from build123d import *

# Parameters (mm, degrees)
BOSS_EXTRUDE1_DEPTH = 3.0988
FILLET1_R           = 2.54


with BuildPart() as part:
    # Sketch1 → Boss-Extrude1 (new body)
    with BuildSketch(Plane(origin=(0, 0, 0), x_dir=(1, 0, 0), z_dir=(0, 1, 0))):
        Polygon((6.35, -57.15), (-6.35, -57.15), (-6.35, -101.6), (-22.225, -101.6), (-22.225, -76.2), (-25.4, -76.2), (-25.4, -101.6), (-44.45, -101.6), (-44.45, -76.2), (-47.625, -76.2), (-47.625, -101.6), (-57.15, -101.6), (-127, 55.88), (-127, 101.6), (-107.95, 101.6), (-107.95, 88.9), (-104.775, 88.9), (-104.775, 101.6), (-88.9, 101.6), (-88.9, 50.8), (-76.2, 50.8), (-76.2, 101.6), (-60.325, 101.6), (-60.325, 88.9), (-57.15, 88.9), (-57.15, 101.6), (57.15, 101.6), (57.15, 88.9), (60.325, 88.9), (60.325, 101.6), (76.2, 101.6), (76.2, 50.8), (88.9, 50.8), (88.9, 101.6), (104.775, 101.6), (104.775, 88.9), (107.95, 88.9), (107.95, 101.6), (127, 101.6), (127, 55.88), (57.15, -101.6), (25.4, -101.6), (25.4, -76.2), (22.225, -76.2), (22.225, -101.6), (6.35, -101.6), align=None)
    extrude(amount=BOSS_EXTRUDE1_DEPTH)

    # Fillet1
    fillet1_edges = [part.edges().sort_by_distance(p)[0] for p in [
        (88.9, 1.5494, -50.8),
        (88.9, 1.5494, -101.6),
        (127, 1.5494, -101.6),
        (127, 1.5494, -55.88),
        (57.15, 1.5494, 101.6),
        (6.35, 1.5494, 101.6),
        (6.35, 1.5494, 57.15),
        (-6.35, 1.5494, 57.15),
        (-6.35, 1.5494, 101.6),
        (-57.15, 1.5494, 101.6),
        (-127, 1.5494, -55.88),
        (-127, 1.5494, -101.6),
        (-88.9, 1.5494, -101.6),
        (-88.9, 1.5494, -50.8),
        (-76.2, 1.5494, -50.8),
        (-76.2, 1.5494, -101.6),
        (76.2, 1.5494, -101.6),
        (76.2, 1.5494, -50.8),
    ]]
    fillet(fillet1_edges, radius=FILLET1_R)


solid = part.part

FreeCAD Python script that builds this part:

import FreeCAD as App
import Part
import Sketcher
from FreeCAD import Vector
Q = App.Units.Quantity


def edges_at(feature, points):
    """Names of the edges that pass closest to the given points."""
    edges = feature.Shape.Edges
    near = lambda p: min(range(len(edges)), key=lambda i: edges[i].distToShape(Part.Vertex(*p))[0])
    return sorted({f"Edge{near(p) + 1}" for p in points})

doc = App.newDocument("Part")
body = doc.addObject("PartDesign::Body", "Body")

# Sketch on XZ plane
sketch1 = body.newObject("Sketcher::SketchObject", "Sketch")
sketch1.AttachmentSupport = (doc.getObject("XZ_Plane"), [""])
sketch1.MapMode = "FlatFace"
sketch1.addGeometry([
    Part.LineSegment(Vector(-6.3, 57.1, 0), Vector(6.3, 57.1, 0)),  # 0
    Part.LineSegment(Vector(6.3, 57.1, 0), Vector(6.3, 101.6, 0)),  # 1
    Part.LineSegment(Vector(6.3, 101.6, 0), Vector(22.2, 101.6, 0)),  # 2
    Part.LineSegment(Vector(22.2, 101.6, 0), Vector(22.2, 76.2, 0)),  # 3
    Part.LineSegment(Vector(22.2, 76.2, 0), Vector(25.4, 76.2, 0)),  # 4
    Part.LineSegment(Vector(25.4, 76.2, 0), Vector(25.4, 101.6, 0)),  # 5
    Part.LineSegment(Vector(25.4, 101.6, 0), Vector(57.1, 101.6, 0)),  # 6
    Part.LineSegment(Vector(57.1, 101.6, 0), Vector(127, -55.9, 0)),  # 7
    Part.LineSegment(Vector(127, -55.9, 0), Vector(127, -101.6, 0)),  # 8
    Part.LineSegment(Vector(127, -101.6, 0), Vector(108, -101.6, 0)),  # 9
    Part.LineSegment(Vector(108, -101.6, 0), Vector(108, -88.9, 0)),  # 10
    Part.LineSegment(Vector(108, -88.9, 0), Vector(104.8, -88.9, 0)),  # 11
    Part.LineSegment(Vector(104.8, -88.9, 0), Vector(104.8, -101.6, 0)),  # 12
    Part.LineSegment(Vector(104.8, -101.6, 0), Vector(88.9, -101.6, 0)),  # 13
    Part.LineSegment(Vector(88.9, -101.6, 0), Vector(88.9, -50.8, 0)),  # 14
    Part.LineSegment(Vector(88.9, -50.8, 0), Vector(76.2, -50.8, 0)),  # 15
    Part.LineSegment(Vector(76.2, -50.8, 0), Vector(76.2, -101.6, 0)),  # 16
    Part.LineSegment(Vector(76.2, -101.6, 0), Vector(60.3, -101.6, 0)),  # 17
    Part.LineSegment(Vector(60.3, -101.6, 0), Vector(60.3, -88.9, 0)),  # 18
    Part.LineSegment(Vector(60.3, -88.9, 0), Vector(57.1, -88.9, 0)),  # 19
    Part.LineSegment(Vector(57.1, -88.9, 0), Vector(57.1, -101.6, 0)),  # 20
    Part.LineSegment(Vector(57.1, -101.6, 0), Vector(-57.1, -101.6, 0)),  # 21
    Part.LineSegment(Vector(-57.1, -101.6, 0), Vector(-57.1, -88.9, 0)),  # 22
    Part.LineSegment(Vector(-57.1, -88.9, 0), Vector(-60.3, -88.9, 0)),  # 23
    Part.LineSegment(Vector(-60.3, -88.9, 0), Vector(-60.3, -101.6, 0)),  # 24
    Part.LineSegment(Vector(-60.3, -101.6, 0), Vector(-76.2, -101.6, 0)),  # 25
    Part.LineSegment(Vector(-76.2, -101.6, 0), Vector(-76.2, -50.8, 0)),  # 26
    Part.LineSegment(Vector(-76.2, -50.8, 0), Vector(-88.9, -50.8, 0)),  # 27
    Part.LineSegment(Vector(-88.9, -50.8, 0), Vector(-88.9, -101.6, 0)),  # 28
    Part.LineSegment(Vector(-88.9, -101.6, 0), Vector(-104.8, -101.6, 0)),  # 29
    Part.LineSegment(Vector(-104.8, -101.6, 0), Vector(-104.8, -88.9, 0)),  # 30
    Part.LineSegment(Vector(-104.8, -88.9, 0), Vector(-108, -88.9, 0)),  # 31
    Part.LineSegment(Vector(-108, -88.9, 0), Vector(-108, -101.6, 0)),  # 32
    Part.LineSegment(Vector(-108, -101.6, 0), Vector(-127, -101.6, 0)),  # 33
    Part.LineSegment(Vector(-127, -101.6, 0), Vector(-127, -55.9, 0)),  # 34
    Part.LineSegment(Vector(-127, -55.9, 0), Vector(-57.1, 101.6, 0)),  # 35
    Part.LineSegment(Vector(-57.1, 101.6, 0), Vector(-47.6, 101.6, 0)),  # 36
    Part.LineSegment(Vector(-47.6, 101.6, 0), Vector(-47.6, 76.2, 0)),  # 37
    Part.LineSegment(Vector(-47.6, 76.2, 0), Vector(-44.5, 76.2, 0)),  # 38
    Part.LineSegment(Vector(-44.5, 76.2, 0), Vector(-44.5, 101.6, 0)),  # 39
    Part.LineSegment(Vector(-44.5, 101.6, 0), Vector(-25.4, 101.6, 0)),  # 40
    Part.LineSegment(Vector(-25.4, 101.6, 0), Vector(-25.4, 76.2, 0)),  # 41
    Part.LineSegment(Vector(-25.4, 76.2, 0), Vector(-22.2, 76.2, 0)),  # 42
    Part.LineSegment(Vector(-22.2, 76.2, 0), Vector(-22.2, 101.6, 0)),  # 43
    Part.LineSegment(Vector(-22.2, 101.6, 0), Vector(-6.3, 101.6, 0)),  # 44
    Part.LineSegment(Vector(-6.3, 101.6, 0), Vector(-6.3, 57.1, 0)),  # 45
], False)
sketch1.addConstraint([
    Sketcher.Constraint("Coincident", 0, 2, 1, 1),
    Sketcher.Constraint("Coincident", 1, 2, 2, 1),
    Sketcher.Constraint("Coincident", 2, 2, 3, 1),
    Sketcher.Constraint("Coincident", 3, 2, 4, 1),
    Sketcher.Constraint("Coincident", 4, 2, 5, 1),
    Sketcher.Constraint("Coincident", 5, 2, 6, 1),
    Sketcher.Constraint("Coincident", 6, 2, 7, 1),
    Sketcher.Constraint("Coincident", 7, 2, 8, 1),
    Sketcher.Constraint("Coincident", 8, 2, 9, 1),
    Sketcher.Constraint("Coincident", 9, 2, 10, 1),
    Sketcher.Constraint("Coincident", 10, 2, 11, 1),
    Sketcher.Constraint("Coincident", 11, 2, 12, 1),
    Sketcher.Constraint("Coincident", 12, 2, 13, 1),
    Sketcher.Constraint("Coincident", 13, 2, 14, 1),
    Sketcher.Constraint("Coincident", 14, 2, 15, 1),
    Sketcher.Constraint("Coincident", 15, 2, 16, 1),
    Sketcher.Constraint("Coincident", 16, 2, 17, 1),
    Sketcher.Constraint("Coincident", 17, 2, 18, 1),
    Sketcher.Constraint("Coincident", 18, 2, 19, 1),
    Sketcher.Constraint("Coincident", 19, 2, 20, 1),
    Sketcher.Constraint("Coincident", 20, 2, 21, 1),
    Sketcher.Constraint("Coincident", 21, 2, 22, 1),
    Sketcher.Constraint("Coincident", 22, 2, 23, 1),
    Sketcher.Constraint("Coincident", 23, 2, 24, 1),
    Sketcher.Constraint("Coincident", 24, 2, 25, 1),
    Sketcher.Constraint("Coincident", 25, 2, 26, 1),
    Sketcher.Constraint("Coincident", 26, 2, 27, 1),
    Sketcher.Constraint("Coincident", 27, 2, 28, 1),
    Sketcher.Constraint("Coincident", 28, 2, 29, 1),
    Sketcher.Constraint("Coincident", 29, 2, 30, 1),
    Sketcher.Constraint("Coincident", 30, 2, 31, 1),
    Sketcher.Constraint("Coincident", 31, 2, 32, 1),
    Sketcher.Constraint("Coincident", 32, 2, 33, 1),
    Sketcher.Constraint("Coincident", 33, 2, 34, 1),
    Sketcher.Constraint("Coincident", 34, 2, 35, 1),
    Sketcher.Constraint("Coincident", 35, 2, 36, 1),
    Sketcher.Constraint("Coincident", 36, 2, 37, 1),
    Sketcher.Constraint("Coincident", 37, 2, 38, 1),
    Sketcher.Constraint("Coincident", 38, 2, 39, 1),
    Sketcher.Constraint("Coincident", 39, 2, 40, 1),
    Sketcher.Constraint("Coincident", 40, 2, 41, 1),
    Sketcher.Constraint("Coincident", 41, 2, 42, 1),
    Sketcher.Constraint("Coincident", 42, 2, 43, 1),
    Sketcher.Constraint("Coincident", 43, 2, 44, 1),
    Sketcher.Constraint("Coincident", 44, 2, 45, 1),
    Sketcher.Constraint("Coincident", 45, 2, 0, 1),
    Sketcher.Constraint("Horizontal", 0),
    Sketcher.Constraint("Vertical", 1),
    Sketcher.Constraint("Horizontal", 2),
    Sketcher.Constraint("Vertical", 3),
    Sketcher.Constraint("Horizontal", 4),
    Sketcher.Constraint("Vertical", 5),
    Sketcher.Constraint("Horizontal", 6),
    Sketcher.Constraint("Vertical", 8),
    Sketcher.Constraint("Horizontal", 9),
    Sketcher.Constraint("Vertical", 10),
    Sketcher.Constraint("Horizontal", 11),
    Sketcher.Constraint("Vertical", 12),
    Sketcher.Constraint("Horizontal", 13),
    Sketcher.Constraint("Vertical", 14),
    Sketcher.Constraint("Horizontal", 15),
    Sketcher.Constraint("Vertical", 16),
    Sketcher.Constraint("Horizontal", 17),
    Sketcher.Constraint("Vertical", 18),
    Sketcher.Constraint("Horizontal", 19),
    Sketcher.Constraint("Vertical", 20),
    Sketcher.Constraint("Horizontal", 21),
    Sketcher.Constraint("Vertical", 22),
    Sketcher.Constraint("Horizontal", 23),
    Sketcher.Constraint("Vertical", 24),
    Sketcher.Constraint("Horizontal", 25),
    Sketcher.Constraint("Vertical", 26),
    Sketcher.Constraint("Horizontal", 27),
    Sketcher.Constraint("Vertical", 28),
    Sketcher.Constraint("Horizontal", 29),
    Sketcher.Constraint("Vertical", 30),
    Sketcher.Constraint("Horizontal", 31),
    Sketcher.Constraint("Vertical", 32),
    Sketcher.Constraint("Horizontal", 33),
    Sketcher.Constraint("Vertical", 34),
    Sketcher.Constraint("Horizontal", 36),
    Sketcher.Constraint("Vertical", 37),
    Sketcher.Constraint("Horizontal", 38),
    Sketcher.Constraint("Vertical", 39),
    Sketcher.Constraint("Horizontal", 40),
    Sketcher.Constraint("Vertical", 41),
    Sketcher.Constraint("Horizontal", 42),
    Sketcher.Constraint("Vertical", 43),
    Sketcher.Constraint("Horizontal", 44),
    Sketcher.Constraint("Vertical", 45),
    Sketcher.Constraint("Symmetric", 6, 2, 21, 2, -1, 1),
    Sketcher.Constraint("Symmetric", 20, 2, 35, 2, -1, 1),
    Sketcher.Constraint("Symmetric", 19, 2, 22, 2, -2),
    Sketcher.Constraint("Symmetric", 17, 2, 24, 2, -2),
    Sketcher.Constraint("Symmetric", 15, 2, 26, 2, -2),
    Sketcher.Constraint("Symmetric", 13, 2, 28, 2, -2),
    Sketcher.Constraint("Symmetric", 11, 2, 30, 2, -2),
    Sketcher.Constraint("Symmetric", 9, 2, 32, 2, -2),
    Sketcher.Constraint("Symmetric", 7, 2, 34, 2, -2),
    Sketcher.Constraint("Symmetric", 5, 2, 40, 2, -2),
    Sketcher.Constraint("Symmetric", 3, 2, 42, 2, -2),
    Sketcher.Constraint("Symmetric", 1, 2, 44, 2, -2),
    Sketcher.Constraint("Horizontal", 2, 2, 5, 2),
    Sketcher.Constraint("Horizontal", 9, 2, 12, 2),
    Sketcher.Constraint("Horizontal", 13, 2, 16, 2),
    Sketcher.Constraint("Horizontal", 11, 2, 18, 2),
    Sketcher.Constraint("Horizontal", 17, 2, 20, 2),
    Sketcher.Constraint("Horizontal", 4, 2, 37, 2),
    Sketcher.Constraint("Equal", 4, 11),
    Sketcher.Constraint("Equal", 2, 13),
    Sketcher.Constraint("Equal", 0, 15),
    Sketcher.Constraint("Equal", 13, 17),
    Sketcher.Constraint("Equal", 11, 19),
    Sketcher.Constraint("Equal", 31, 38),
    Sketcher.Constraint("Equal", 33, 40),
    Sketcher.Constraint("Equal", 27, 10),
    Sketcher.Constraint("DistanceY", 3, 2, 3, 1, Q("1 in")),
    Sketcher.Constraint("DistanceY", 14, 1, 14, 2, Q("2 in")),
    Sketcher.Constraint("DistanceX", 0, 1, 0, 2, Q("0.5 in")),
    Sketcher.Constraint("DistanceX", 21, 2, 21, 1, Q("4.5 in")),
    Sketcher.Constraint("DistanceY", 8, 2, 8, 1, Q("1.8 in")),
    Sketcher.Constraint("DistanceY", -1, 1, 1, 2, Q("4 in")),
    Sketcher.Constraint("DistanceX", -1, 1, 4, 2, Q("1 in")),
    Sketcher.Constraint("DistanceX", -1, 1, 7, 2, Q("5 in")),
    Sketcher.Constraint("DistanceX", 37, 2, 42, 2, Q("1 in")),
    Sketcher.Constraint("DistanceY", 1, 1, 1, 2, Q("1.75 in")),
])
pad1 = body.newObject("PartDesign::Pad", "Pad")
pad1.Profile = sketch1
pad1.Length = Q("0.122 in")
pad1.Reversed = True
doc.recompute()

fillet = body.newObject("PartDesign::Fillet", "Fillet")
fillet.Base = (pad1, edges_at(pad1, [
    (88.9, 1.549, -50.8),
    (88.9, 1.549, -101.6),
    (127, 1.549, -101.6),
    (127, 1.549, -55.88),
    (57.15, 1.549, 101.6),
    (6.35, 1.549, 101.6),
    (6.35, 1.549, 57.15),
    (-6.35, 1.549, 57.15),
    (-6.35, 1.549, 101.6),
    (-57.15, 1.549, 101.6),
    (-127, 1.549, -55.88),
    (-127, 1.549, -101.6),
    (-88.9, 1.549, -101.6),
    (-88.9, 1.549, -50.8),
    (-76.2, 1.549, -50.8),
    (-76.2, 1.549, -101.6),
    (76.2, 1.549, -101.6),
    (76.2, 1.549, -50.8),
]))
fillet.Radius = Q("0.1 in")

doc.recompute()
